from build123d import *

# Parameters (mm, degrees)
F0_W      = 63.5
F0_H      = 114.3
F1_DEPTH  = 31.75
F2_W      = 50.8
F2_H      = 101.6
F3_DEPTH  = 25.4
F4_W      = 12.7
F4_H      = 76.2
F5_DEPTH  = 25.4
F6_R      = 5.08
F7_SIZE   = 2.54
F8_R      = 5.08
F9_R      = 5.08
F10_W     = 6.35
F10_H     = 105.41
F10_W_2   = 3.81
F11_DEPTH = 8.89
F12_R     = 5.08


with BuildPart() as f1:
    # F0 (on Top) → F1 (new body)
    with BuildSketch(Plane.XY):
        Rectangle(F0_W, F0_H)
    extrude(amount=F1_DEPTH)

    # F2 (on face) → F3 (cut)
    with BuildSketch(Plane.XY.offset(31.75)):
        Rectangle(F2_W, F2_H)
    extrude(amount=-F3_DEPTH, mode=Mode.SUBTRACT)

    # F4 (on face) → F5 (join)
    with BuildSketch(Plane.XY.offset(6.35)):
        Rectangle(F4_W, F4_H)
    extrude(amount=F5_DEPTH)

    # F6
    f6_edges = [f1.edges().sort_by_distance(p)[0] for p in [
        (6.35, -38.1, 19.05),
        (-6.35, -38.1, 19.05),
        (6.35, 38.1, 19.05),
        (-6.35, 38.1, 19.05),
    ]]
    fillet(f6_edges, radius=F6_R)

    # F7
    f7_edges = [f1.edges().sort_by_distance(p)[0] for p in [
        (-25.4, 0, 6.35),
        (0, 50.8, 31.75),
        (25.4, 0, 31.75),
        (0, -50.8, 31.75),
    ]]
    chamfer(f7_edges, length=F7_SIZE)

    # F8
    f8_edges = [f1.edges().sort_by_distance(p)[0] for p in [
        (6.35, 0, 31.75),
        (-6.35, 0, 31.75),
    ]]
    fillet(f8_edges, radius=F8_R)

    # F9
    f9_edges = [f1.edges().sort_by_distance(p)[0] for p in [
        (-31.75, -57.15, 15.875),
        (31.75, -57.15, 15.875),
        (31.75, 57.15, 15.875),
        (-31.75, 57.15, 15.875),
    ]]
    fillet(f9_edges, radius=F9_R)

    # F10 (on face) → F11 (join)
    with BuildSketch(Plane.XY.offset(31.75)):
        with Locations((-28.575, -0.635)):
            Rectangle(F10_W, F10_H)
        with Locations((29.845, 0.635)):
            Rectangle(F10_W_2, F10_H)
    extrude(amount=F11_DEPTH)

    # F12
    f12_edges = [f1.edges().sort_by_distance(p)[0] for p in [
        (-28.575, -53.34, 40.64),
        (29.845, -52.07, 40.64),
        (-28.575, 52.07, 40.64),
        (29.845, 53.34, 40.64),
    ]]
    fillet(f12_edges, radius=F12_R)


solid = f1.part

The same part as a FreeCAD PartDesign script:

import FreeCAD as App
import Part
import Sketcher
from FreeCAD import Vector
Q = App.Units.Quantity


def edges_at(feature, points):
    """Names of the edges that pass closest to the given points."""
    edges = feature.Shape.Edges
    near = lambda p: min(range(len(edges)), key=lambda i: edges[i].distToShape(Part.Vertex(*p))[0])
    return sorted({f"Edge{near(p) + 1}" for p in points})


def add_polygon(sketch, points):
    """Adds a closed chain of lines whose ends are joined by coincident constraints."""
    first, n = sketch.GeometryCount, len(points)
    for a, b in zip(points, points[1:] + points[:1]):
        sketch.addGeometry(Part.LineSegment(App.Vector(*a, 0), App.Vector(*b, 0)), False)
    for i in range(n):
        sketch.addConstraint(Sketcher.Constraint("Coincident", first + i, 2, first + (i + 1) % n, 1))

doc = App.newDocument("Part")
body = doc.addObject("PartDesign::Body", "Body")

sketch1 = body.newObject("Sketcher::SketchObject", "Sketch")
sketch1.AttachmentSupport = (doc.getObject("XY_Plane"), [""])
sketch1.MapMode = "FlatFace"
add_polygon(sketch1, [(-32, 57), (-32, -57), (32, -57), (32, 57)])
sketch1.addConstraint(Sketcher.Constraint("Vertical", 0))
sketch1.addConstraint(Sketcher.Constraint("Horizontal", 1))
sketch1.addConstraint(Sketcher.Constraint("Vertical", 2))
sketch1.addConstraint(Sketcher.Constraint("Horizontal", 3))
sketch1.addConstraint(Sketcher.Constraint("Symmetric", 0, 2, 2, 2, -1, 1))
sketch1.addConstraint(Sketcher.Constraint("DistanceX", 1, 1, 1, 2, Q("2.5 in")))
sketch1.addConstraint(Sketcher.Constraint("DistanceY", 0, 2, 0, 1, Q("4.5 in")))
pad1 = body.newObject("PartDesign::Pad", "Pad")
pad1.Profile = sketch1
pad1.Length = Q("1.25 in")

sketch2 = body.newObject("Sketcher::SketchObject", "Sketch001")
sketch2.AttachmentSupport = (doc.getObject("XY_Plane"), [""])
sketch2.MapMode = "FlatFace"
sketch2.AttachmentOffset = App.Placement(Vector(0, 0, 1.25 * 25.4), App.Rotation())
add_polygon(sketch2, [(-25, 51), (-25, -51), (25, -51), (25, 51)])
sketch2.addConstraint(Sketcher.Constraint("Vertical", 0))
sketch2.addConstraint(Sketcher.Constraint("Horizontal", 1))
sketch2.addConstraint(Sketcher.Constraint("Vertical", 2))
sketch2.addConstraint(Sketcher.Constraint("Horizontal", 3))
sketch2.addConstraint(Sketcher.Constraint("Symmetric", 0, 2, 2, 2, -1, 1))
sketch2.addConstraint(Sketcher.Constraint("DistanceX", 1, 1, 1, 2, Q("2 in")))
sketch2.addConstraint(Sketcher.Constraint("DistanceY", 0, 2, 0, 1, Q("4 in")))
pocket1 = body.newObject("PartDesign::Pocket", "Pocket")
pocket1.Profile = sketch2
pocket1.Length = Q("1 in")

sketch3 = body.newObject("Sketcher::SketchObject", "Sketch002")
sketch3.AttachmentSupport = (doc.getObject("XY_Plane"), [""])
sketch3.MapMode = "FlatFace"
sketch3.AttachmentOffset = App.Placement(Vector(0, 0, 0.25 * 25.4), App.Rotation())
add_polygon(sketch3, [(-6, 38), (-6, -38), (6, -38), (6, 38)])
sketch3.addConstraint(Sketcher.Constraint("Vertical", 0))
sketch3.addConstraint(Sketcher.Constraint("Horizontal", 1))
sketch3.addConstraint(Sketcher.Constraint("Vertical", 2))
sketch3.addConstraint(Sketcher.Constraint("Horizontal", 3))
sketch3.addConstraint(Sketcher.Constraint("Symmetric", 0, 2, 2, 2, -1, 1))
sketch3.addConstraint(Sketcher.Constraint("DistanceY", 0, 2, 0, 1, Q("3 in")))
sketch3.addConstraint(Sketcher.Constraint("DistanceX", 1, 1, 1, 2, Q("0.5 in")))
pad2 = body.newObject("PartDesign::Pad", "Pad001")
pad2.Profile = sketch3
pad2.Length = Q("1 in")
doc.recompute()

fillet = body.newObject("PartDesign::Fillet", "Fillet")
fillet.Base = (pad2, edges_at(pad2, [
    (6.35, -38.1, 19.05),
    (-6.35, -38.1, 19.05),
    (6.35, 38.1, 19.05),
    (-6.35, 38.1, 19.05),
]))
fillet.Radius = Q("0.2 in")
doc.recompute()

chamfer = body.newObject("PartDesign::Chamfer", "Chamfer")
chamfer.Base = (fillet, edges_at(fillet, [
    (-25.4, 0, 6.35),
    (0, 50.8, 31.75),
    (25.4, 0, 31.75),
    (0, -50.8, 31.75),
]))
chamfer.Size = Q("0.1 in")
doc.recompute()

fillet2 = body.newObject("PartDesign::Fillet", "Fillet001")
fillet2.Base = (chamfer, edges_at(chamfer, [(6.35, 0, 31.75), (-6.35, 0, 31.75)]))
fillet2.Radius = Q("0.2 in")
doc.recompute()

fillet3 = body.newObject("PartDesign::Fillet", "Fillet002")
fillet3.Base = (fillet2, edges_at(fillet2, [
    (-31.75, -57.15, 15.875),
    (31.75, -57.15, 15.875),
    (31.75, 57.15, 15.875),
    (-31.75, 57.15, 15.875),
]))
fillet3.Radius = Q("0.2 in")

sketch4 = body.newObject("Sketcher::SketchObject", "Sketch003")
sketch4.AttachmentSupport = (doc.getObject("XY_Plane"), [""])
sketch4.MapMode = "FlatFace"
sketch4.AttachmentOffset = App.Placement(Vector(0, 0, 1.25 * 25.4), App.Rotation())
add_polygon(sketch4, [(-31.8, 52.1), (-31.8, -53.3), (-25.4, -53.3), (-25.4, 52.1)])
add_polygon(sketch4, [(27.9, 53.3), (27.9, -52.1), (31.8, -52.1), (31.8, 53.3)])
sketch4.addConstraint(Sketcher.Constraint("Vertical", 0))
sketch4.addConstraint(Sketcher.Constraint("Horizontal", 1))
sketch4.addConstraint(Sketcher.Constraint("Vertical", 2))
sketch4.addConstraint(Sketcher.Constraint("Horizontal", 3))
sketch4.addConstraint(Sketcher.Constraint("Vertical", 4))
sketch4.addConstraint(Sketcher.Constraint("Horizontal", 5))
sketch4.addConstraint(Sketcher.Constraint("Vertical", 6))
sketch4.addConstraint(Sketcher.Constraint("Horizontal", 7))
sketch4.addConstraint(Sketcher.Constraint("Symmetric", 3, 2, 5, 2, -1, 1))
sketch4.addConstraint(Sketcher.Constraint("Equal", 2, 4))
sketch4.addConstraint(Sketcher.Constraint("DistanceX", 1, 2, -1, 1, Q("1 in")))
sketch4.addConstraint(Sketcher.Constraint("DistanceX", 1, 1, 1, 2, Q("0.25 in")))
sketch4.addConstraint(Sketcher.Constraint("DistanceX", 5, 1, 5, 2, Q("0.15 in")))
sketch4.addConstraint(Sketcher.Constraint("DistanceY", 0, 2, 0, 1, Q("4.15 in")))
sketch4.addConstraint(Sketcher.Constraint("DistanceY", 0, 2, -1, 1, Q("2.1 in")))
pad3 = body.newObject("PartDesign::Pad", "Pad002")
pad3.Profile = sketch4
pad3.Length = Q("0.35 in")
doc.recompute()

fillet4 = body.newObject("PartDesign::Fillet", "Fillet003")
fillet4.Base = (pad3, edges_at(pad3, [
    (-28.575, -53.34, 40.64),
    (29.845, -52.07, 40.64),
    (-28.575, 52.07, 40.64),
    (29.845, 53.34, 40.64),
]))
fillet4.Radius = Q("0.2 in")

doc.recompute()
